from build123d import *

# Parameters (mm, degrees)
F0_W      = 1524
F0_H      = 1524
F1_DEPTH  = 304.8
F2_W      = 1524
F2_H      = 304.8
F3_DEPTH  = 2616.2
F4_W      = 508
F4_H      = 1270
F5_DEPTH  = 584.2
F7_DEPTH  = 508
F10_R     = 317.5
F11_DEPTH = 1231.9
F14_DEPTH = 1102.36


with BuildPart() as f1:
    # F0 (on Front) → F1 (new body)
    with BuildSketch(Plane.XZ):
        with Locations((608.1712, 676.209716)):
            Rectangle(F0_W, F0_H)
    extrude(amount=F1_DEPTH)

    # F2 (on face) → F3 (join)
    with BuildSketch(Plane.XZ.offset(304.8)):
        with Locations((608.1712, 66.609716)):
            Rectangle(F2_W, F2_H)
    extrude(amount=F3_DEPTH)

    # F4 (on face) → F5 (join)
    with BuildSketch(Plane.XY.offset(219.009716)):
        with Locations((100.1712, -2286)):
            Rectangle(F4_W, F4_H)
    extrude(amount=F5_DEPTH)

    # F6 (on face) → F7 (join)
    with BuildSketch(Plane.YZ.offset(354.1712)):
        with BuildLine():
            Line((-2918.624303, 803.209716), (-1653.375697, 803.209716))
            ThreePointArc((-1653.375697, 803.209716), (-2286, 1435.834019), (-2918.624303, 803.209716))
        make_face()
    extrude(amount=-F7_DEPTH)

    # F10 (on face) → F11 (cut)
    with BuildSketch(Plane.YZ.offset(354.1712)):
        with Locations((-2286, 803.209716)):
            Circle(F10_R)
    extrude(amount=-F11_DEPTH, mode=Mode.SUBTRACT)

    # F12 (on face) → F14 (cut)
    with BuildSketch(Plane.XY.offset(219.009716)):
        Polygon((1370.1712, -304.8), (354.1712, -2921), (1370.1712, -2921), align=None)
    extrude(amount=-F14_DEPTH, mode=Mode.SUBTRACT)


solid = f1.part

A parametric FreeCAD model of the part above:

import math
import FreeCAD as App
import Part
import Sketcher
Q = App.Units.Quantity


def add_polygon(sketch, points):
    """Adds a closed chain of lines whose ends are joined by coincident constraints."""
    first, n = sketch.GeometryCount, len(points)
    for a, b in zip(points, points[1:] + points[:1]):
        sketch.addGeometry(Part.LineSegment(App.Vector(*a, 0), App.Vector(*b, 0)), False)
    for i in range(n):
        sketch.addConstraint(Sketcher.Constraint("Coincident", first + i, 2, first + (i + 1) % n, 1))

doc = App.newDocument("Part")
body = doc.addObject("PartDesign::Body", "Body")

sketch1 = doc.addObject("Sketcher::SketchObject", "Sketch")
body.addObject(sketch1)
sketch1.AttachmentSupport = (doc.XZ_Plane, [""])
sketch1.MapMode = "FlatFace"
add_polygon(sketch1, [(-153.8288, 1438.209716), (-153.8288, -85.790284), (1370.1712, -85.790284), (1370.1712, 1438.209716)])
sketch1.addConstraint([
    Sketcher.Constraint("Vertical", 0),
    Sketcher.Constraint("Horizontal", 1),
    Sketcher.Constraint("Vertical", 2),
    Sketcher.Constraint("Horizontal", 3),
    Sketcher.Constraint("Equal", 3, 0),
    Sketcher.Constraint("DistanceX", 1, 1, 1, 2, Q("60 in")),
    Sketcher.Constraint("DistanceX", 0, 2, -1, 1, Q("153.8288 mm")),
    Sketcher.Constraint("DistanceY", 0, 2, -1, 1, Q("85.790284 mm")),
])
pad1 = doc.addObject("PartDesign::Pad", "Pad")
body.addObject(pad1)
pad1.Profile = sketch1
pad1.Length = Q("12 in")

sketch2 = doc.addObject("Sketcher::SketchObject", "Sketch001")
body.addObject(sketch2)
sketch2.AttachmentSupport = (doc.XZ_Plane, [""])
sketch2.MapMode = "FlatFace"
sketch2.AttachmentOffset = App.Placement(App.Vector(0, 0, 12 * 25.4), App.Rotation())
add_polygon(sketch2, [(-153.8288, 219.009716), (-153.8288, -85.790284), (1370.1712, -85.790284), (1370.1712, 219.009716)])
sketch2.addConstraint([
    Sketcher.Constraint("Vertical", 0),
    Sketcher.Constraint("Horizontal", 1),
    Sketcher.Constraint("Vertical", 2),
    Sketcher.Constraint("Horizontal", 3),
    Sketcher.Constraint("DistanceX", 1, 1, 1, 2, Q("60 in")),
    Sketcher.Constraint("DistanceY", 0, 2, 0, 1, Q("12 in")),
    Sketcher.Constraint("DistanceX", 0, 2, -1, 1, Q("153.8288 mm")),
    Sketcher.Constraint("DistanceY", 0, 2, -1, 1, Q("85.790284 mm")),
])
pad2 = doc.addObject("PartDesign::Pad", "Pad001")
body.addObject(pad2)
pad2.Profile = sketch2
pad2.Length = Q("103 in")

sketch3 = doc.addObject("Sketcher::SketchObject", "Sketch002")
body.addObject(sketch3)
sketch3.AttachmentSupport = (doc.XY_Plane, [""])
sketch3.MapMode = "FlatFace"
sketch3.AttachmentOffset = App.Placement(App.Vector(0, 0, 219.009716), App.Rotation())
add_polygon(sketch3, [(-153.8288, -1651), (-153.8288, -2921), (354.1712, -2921), (354.1712, -1651)])
sketch3.addConstraint([
    Sketcher.Constraint("Vertical", 0),
    Sketcher.Constraint("Horizontal", 1),
    Sketcher.Constraint("Vertical", 2),
    Sketcher.Constraint("Horizontal", 3),
    Sketcher.Constraint("DistanceX", 1, 1, 1, 2, Q("20 in")),
    Sketcher.Constraint("DistanceY", 0, 2, 0, 1, Q("50 in")),
    Sketcher.Constraint("DistanceY", 0, 2, -1, 1, Q("115 in")),
    Sketcher.Constraint("DistanceX", 0, 2, -1, 1, Q("153.8288 mm")),
])
pad3 = doc.addObject("PartDesign::Pad", "Pad002")
body.addObject(pad3)
pad3.Profile = sketch3
pad3.Length = Q("23 in")

sketch4 = doc.addObject("Sketcher::SketchObject", "Sketch003")
body.addObject(sketch4)
sketch4.AttachmentSupport = (doc.YZ_Plane, [""])
sketch4.MapMode = "FlatFace"
sketch4.AttachmentOffset = App.Placement(App.Vector(0, 0, 354.1712), App.Rotation())
sketch4.addGeometry([
    Part.LineSegment(App.Vector(-2918.624303, 803.209716, 0), App.Vector(-1653.375697, 803.209716, 0)),
    Part.ArcOfCircle(Part.Circle(App.Vector(-2286, 803.209716, 0), App.Vector(0, 0, 1), 632.624303), math.radians(0), math.radians(180)),
], False)
sketch4.addConstraint([
    Sketcher.Constraint("Coincident", 0, 1, 1, 2),
    Sketcher.Constraint("Coincident", 1, 1, 0, 2),
    Sketcher.Constraint("Horizontal", 0),
    Sketcher.Constraint("Horizontal", 1, 3, 0, 1),
    Sketcher.Constraint("DistanceX", 1, 3, -1, 1, Q("90 in")),
    Sketcher.Constraint("Radius", 1, Q("632.624303 mm")),
    Sketcher.Constraint("DistanceY", -1, 1, 1, 3, Q("803.209716 mm")),
])
pad4 = doc.addObject("PartDesign::Pad", "Pad003")
body.addObject(pad4)
pad4.Profile = sketch4
pad4.Length = Q("20 in")
pad4.Reversed = True

sketch5 = doc.addObject("Sketcher::SketchObject", "Sketch004")
body.addObject(sketch5)
sketch5.AttachmentSupport = (doc.YZ_Plane, [""])
sketch5.MapMode = "FlatFace"
sketch5.AttachmentOffset = App.Placement(App.Vector(0, 0, 354.1712), App.Rotation())
sketch5.addGeometry(Part.Circle(App.Vector(-2286, 803.209716, 0), App.Vector(0, 0, 1), 317.5), False)
sketch5.addConstraint([
    Sketcher.Constraint("Diameter", 0, Q("25 in")),
    Sketcher.Constraint("DistanceX", 0, 3, -1, 1, Q("90 in")),
    Sketcher.Constraint("DistanceY", -1, 1, 0, 3, Q("803.209716 mm")),
])
pocket1 = doc.addObject("PartDesign::Pocket", "Pocket")
body.addObject(pocket1)
pocket1.Profile = sketch5
pocket1.Length = Q("48.5 in")

sketch6 = doc.addObject("Sketcher::SketchObject", "Sketch005")
body.addObject(sketch6)
sketch6.AttachmentSupport = (doc.XY_Plane, [""])
sketch6.MapMode = "FlatFace"
sketch6.AttachmentOffset = App.Placement(App.Vector(0, 0, 219.009716), App.Rotation())
add_polygon(sketch6, [(1370.1712, -304.8), (354.1712, -2921), (1370.1712, -2921)])
sketch6.addConstraint([
    Sketcher.Constraint("Horizontal", 1),
    Sketcher.Constraint("Vertical", 2),
    Sketcher.Constraint("DistanceX", 1, 1, 1, 2, Q("40 in")),
    Sketcher.Constraint("DistanceY", 2, 1, 2, 2, Q("103 in")),
    Sketcher.Constraint("DistanceY", 0, 2, -1, 1, Q("115 in")),
    Sketcher.Constraint("DistanceX", -1, 1, 0, 2, Q("354.1712 mm")),
])
pocket2 = doc.addObject("PartDesign::Pocket", "Pocket001")
body.addObject(pocket2)
pocket2.Profile = sketch6
pocket2.Length = Q("43.4 in")

doc.recompute()
